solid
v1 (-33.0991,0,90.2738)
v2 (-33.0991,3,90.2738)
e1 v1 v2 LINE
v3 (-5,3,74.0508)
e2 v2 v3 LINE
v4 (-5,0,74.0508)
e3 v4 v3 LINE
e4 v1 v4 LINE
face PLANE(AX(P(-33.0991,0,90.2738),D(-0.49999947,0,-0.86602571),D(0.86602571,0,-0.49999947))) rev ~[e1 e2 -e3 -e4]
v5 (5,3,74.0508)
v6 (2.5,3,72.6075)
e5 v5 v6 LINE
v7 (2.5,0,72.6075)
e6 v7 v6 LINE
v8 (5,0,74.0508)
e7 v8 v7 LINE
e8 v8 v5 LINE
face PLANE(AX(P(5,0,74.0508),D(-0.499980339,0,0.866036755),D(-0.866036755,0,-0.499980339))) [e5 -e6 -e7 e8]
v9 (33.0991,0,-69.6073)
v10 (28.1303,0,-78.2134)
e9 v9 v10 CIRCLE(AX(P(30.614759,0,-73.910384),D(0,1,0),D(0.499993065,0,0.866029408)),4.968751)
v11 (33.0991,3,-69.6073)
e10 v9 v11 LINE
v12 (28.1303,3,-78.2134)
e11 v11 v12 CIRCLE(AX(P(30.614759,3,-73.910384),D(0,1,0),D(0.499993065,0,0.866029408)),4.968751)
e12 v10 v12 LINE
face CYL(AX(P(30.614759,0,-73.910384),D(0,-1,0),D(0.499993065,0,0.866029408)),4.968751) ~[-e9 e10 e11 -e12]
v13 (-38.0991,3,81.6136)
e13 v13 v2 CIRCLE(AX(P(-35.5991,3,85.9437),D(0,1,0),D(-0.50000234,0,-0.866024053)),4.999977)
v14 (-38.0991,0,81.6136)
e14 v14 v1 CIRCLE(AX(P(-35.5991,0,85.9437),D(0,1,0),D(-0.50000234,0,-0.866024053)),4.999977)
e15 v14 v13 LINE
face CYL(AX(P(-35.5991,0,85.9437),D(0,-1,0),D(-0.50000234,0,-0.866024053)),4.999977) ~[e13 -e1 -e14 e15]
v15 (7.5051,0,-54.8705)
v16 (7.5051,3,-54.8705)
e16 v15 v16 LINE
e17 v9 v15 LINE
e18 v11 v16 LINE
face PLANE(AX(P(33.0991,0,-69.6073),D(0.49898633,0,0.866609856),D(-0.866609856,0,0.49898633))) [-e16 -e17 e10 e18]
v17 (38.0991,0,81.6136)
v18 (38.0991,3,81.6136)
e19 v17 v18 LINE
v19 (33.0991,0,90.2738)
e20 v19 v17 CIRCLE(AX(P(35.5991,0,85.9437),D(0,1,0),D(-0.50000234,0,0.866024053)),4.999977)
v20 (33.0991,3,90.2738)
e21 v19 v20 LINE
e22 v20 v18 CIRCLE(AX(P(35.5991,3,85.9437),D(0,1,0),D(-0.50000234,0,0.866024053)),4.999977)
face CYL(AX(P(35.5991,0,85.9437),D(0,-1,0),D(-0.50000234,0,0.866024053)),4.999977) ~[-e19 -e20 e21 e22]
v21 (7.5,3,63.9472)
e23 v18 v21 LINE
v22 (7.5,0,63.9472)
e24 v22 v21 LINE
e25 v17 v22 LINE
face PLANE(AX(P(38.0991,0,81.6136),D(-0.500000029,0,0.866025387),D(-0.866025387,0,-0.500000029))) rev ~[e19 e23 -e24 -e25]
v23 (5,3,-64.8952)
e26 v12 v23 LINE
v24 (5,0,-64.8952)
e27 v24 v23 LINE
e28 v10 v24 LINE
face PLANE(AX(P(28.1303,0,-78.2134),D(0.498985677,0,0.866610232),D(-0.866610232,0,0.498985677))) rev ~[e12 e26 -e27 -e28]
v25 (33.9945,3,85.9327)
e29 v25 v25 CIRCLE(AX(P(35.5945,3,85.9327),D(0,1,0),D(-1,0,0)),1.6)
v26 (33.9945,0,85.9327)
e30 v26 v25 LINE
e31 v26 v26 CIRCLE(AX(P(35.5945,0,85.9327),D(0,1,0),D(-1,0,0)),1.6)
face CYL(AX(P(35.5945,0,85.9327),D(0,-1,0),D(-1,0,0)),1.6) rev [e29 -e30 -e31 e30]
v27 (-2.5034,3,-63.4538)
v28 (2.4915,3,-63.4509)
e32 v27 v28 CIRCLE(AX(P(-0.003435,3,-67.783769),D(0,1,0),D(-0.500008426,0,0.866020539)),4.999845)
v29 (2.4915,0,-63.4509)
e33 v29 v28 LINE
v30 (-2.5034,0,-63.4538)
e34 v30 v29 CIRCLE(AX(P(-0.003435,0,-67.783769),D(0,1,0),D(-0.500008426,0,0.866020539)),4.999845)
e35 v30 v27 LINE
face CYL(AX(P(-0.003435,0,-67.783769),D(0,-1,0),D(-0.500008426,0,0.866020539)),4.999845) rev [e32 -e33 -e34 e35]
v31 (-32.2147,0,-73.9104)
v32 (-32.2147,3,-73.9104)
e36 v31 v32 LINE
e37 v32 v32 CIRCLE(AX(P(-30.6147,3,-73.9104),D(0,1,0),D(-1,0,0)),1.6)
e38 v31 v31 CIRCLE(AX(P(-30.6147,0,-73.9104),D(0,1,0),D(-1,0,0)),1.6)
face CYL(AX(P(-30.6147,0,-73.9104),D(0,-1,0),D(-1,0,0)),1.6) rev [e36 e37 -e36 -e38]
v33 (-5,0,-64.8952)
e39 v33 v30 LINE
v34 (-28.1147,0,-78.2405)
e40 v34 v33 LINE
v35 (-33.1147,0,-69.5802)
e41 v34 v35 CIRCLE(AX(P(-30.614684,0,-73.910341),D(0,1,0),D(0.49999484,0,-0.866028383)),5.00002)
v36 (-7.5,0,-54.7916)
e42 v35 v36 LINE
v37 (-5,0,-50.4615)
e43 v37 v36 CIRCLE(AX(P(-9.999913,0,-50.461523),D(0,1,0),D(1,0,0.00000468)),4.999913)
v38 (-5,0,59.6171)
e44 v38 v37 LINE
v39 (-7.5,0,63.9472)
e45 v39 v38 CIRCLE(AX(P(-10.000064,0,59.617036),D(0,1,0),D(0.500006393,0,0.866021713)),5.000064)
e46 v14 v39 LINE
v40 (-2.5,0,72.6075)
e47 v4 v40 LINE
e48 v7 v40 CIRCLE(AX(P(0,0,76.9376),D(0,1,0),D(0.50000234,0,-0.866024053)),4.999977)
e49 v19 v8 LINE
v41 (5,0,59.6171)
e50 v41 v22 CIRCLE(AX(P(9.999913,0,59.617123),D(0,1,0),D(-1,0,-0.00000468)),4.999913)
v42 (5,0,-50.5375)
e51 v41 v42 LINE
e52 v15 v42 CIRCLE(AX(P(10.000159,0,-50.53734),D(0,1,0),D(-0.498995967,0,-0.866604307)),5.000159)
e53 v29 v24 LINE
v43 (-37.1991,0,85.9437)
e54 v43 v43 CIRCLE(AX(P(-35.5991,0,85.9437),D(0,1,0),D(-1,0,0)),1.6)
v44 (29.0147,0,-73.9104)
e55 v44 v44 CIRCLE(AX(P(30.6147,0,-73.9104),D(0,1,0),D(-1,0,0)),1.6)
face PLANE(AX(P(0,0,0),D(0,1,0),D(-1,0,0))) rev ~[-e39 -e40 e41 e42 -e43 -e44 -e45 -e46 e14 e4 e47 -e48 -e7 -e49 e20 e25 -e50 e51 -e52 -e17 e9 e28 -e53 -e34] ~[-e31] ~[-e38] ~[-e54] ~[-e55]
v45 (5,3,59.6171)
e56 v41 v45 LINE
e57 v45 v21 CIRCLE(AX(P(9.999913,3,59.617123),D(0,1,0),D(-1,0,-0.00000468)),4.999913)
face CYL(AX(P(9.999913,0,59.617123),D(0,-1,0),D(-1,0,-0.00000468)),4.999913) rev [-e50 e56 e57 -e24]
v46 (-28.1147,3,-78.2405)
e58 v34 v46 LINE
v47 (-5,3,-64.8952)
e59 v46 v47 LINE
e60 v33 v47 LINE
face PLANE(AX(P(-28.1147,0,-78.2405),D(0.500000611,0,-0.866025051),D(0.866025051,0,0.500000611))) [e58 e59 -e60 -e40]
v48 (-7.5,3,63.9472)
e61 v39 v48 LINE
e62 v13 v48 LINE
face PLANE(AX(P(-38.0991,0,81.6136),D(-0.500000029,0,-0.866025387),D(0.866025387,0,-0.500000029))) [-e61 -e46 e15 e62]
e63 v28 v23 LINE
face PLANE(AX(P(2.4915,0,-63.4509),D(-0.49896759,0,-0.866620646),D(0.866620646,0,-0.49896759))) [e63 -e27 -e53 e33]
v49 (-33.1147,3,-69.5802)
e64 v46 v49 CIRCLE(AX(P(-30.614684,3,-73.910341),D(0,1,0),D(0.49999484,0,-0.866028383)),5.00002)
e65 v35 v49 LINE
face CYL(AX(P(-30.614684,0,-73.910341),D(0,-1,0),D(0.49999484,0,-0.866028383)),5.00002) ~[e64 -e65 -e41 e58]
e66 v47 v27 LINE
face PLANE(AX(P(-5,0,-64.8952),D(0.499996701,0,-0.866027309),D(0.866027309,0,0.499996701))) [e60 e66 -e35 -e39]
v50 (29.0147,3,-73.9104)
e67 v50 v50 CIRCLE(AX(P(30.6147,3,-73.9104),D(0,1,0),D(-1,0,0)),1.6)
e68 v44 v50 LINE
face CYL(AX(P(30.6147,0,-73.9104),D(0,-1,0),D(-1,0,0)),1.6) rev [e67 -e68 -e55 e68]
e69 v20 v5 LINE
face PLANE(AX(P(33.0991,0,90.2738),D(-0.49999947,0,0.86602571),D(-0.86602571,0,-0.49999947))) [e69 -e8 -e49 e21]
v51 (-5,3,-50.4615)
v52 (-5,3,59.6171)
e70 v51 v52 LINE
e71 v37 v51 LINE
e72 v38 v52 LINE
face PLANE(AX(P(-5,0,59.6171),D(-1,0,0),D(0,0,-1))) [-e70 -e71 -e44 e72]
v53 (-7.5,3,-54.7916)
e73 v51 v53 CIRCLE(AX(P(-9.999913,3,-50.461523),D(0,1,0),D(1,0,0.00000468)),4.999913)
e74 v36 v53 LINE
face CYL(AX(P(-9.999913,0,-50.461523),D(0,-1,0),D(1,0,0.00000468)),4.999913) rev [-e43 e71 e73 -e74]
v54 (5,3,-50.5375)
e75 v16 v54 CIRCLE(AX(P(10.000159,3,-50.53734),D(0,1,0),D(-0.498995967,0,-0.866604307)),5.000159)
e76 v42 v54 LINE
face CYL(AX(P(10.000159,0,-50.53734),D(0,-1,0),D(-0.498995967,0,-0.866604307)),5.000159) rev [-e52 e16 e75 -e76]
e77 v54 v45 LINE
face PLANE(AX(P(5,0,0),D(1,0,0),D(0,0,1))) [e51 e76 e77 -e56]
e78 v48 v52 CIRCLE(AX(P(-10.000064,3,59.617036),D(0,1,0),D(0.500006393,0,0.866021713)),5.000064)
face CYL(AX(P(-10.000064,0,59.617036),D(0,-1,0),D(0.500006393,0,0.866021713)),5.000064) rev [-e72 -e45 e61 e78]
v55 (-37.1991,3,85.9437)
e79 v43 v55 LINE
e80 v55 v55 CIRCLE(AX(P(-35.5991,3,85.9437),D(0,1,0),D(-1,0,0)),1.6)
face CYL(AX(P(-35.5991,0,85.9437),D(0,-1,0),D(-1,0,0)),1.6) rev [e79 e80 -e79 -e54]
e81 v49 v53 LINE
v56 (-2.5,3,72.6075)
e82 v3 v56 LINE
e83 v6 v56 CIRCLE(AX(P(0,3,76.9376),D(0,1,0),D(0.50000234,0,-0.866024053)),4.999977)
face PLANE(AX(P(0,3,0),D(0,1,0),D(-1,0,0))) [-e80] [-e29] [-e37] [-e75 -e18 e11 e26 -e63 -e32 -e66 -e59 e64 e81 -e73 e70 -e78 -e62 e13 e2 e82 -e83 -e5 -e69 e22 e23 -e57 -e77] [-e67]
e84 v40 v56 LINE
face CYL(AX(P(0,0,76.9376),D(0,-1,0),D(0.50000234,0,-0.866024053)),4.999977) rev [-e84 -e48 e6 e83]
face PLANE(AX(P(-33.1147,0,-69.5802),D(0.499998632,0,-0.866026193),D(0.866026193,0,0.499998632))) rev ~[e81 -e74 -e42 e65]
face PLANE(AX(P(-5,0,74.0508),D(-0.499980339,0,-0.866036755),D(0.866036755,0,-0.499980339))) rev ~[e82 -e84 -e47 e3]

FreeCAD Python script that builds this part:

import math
import FreeCAD as App
import Part
import Sketcher
from FreeCAD import Vector
Q = App.Units.Quantity

doc = App.newDocument("Part")
body = doc.addObject("PartDesign::Body", "Body")

# Sketch on XZ plane
sketch1 = body.newObject("Sketcher::SketchObject", "Sketch")
sketch1.AttachmentSupport = (doc.getObject("XZ_Plane"), [""])
sketch1.MapMode = "FlatFace"
sketch1.addGeometry([
    Part.LineSegment(Vector(5, 59.6, 0), Vector(5, -50.5, 0)),  # 0
    Part.ArcOfCircle(Part.Circle(Vector(10, -50.5, 0), Vector(0, 0, 1), 5), math.radians(180), math.radians(240)),  # 1
    Part.LineSegment(Vector(7.5, -54.9, 0), Vector(33.1, -69.6, 0)),  # 2
    Part.ArcOfCircle(Part.Circle(Vector(30.6, -73.9, 0), Vector(0, 0, 1), 5), math.radians(-120), math.radians(60)),  # 3
    Part.LineSegment(Vector(28.1, -78.2, 0), Vector(5, -64.9, 0)),  # 4
    Part.LineSegment(Vector(5, -64.9, 0), Vector(2.5, -63.5, 0)),  # 5
    Part.ArcOfCircle(Part.Circle(Vector(0, -67.8, 0), Vector(0, 0, 1), 5), math.radians(60), math.radians(120)),  # 6
    Part.LineSegment(Vector(-2.5, -63.5, 0), Vector(-5, -64.9, 0)),  # 7
    Part.LineSegment(Vector(-5, -64.9, 0), Vector(-28.1, -78.2, 0)),  # 8
    Part.ArcOfCircle(Part.Circle(Vector(-30.6, -73.9, 0), Vector(0, 0, 1), 5), math.radians(120), math.radians(300)),  # 9
    Part.LineSegment(Vector(-33.1, -69.6, 0), Vector(-7.5, -54.8, 0)),  # 10
    Part.ArcOfCircle(Part.Circle(Vector(-10, -50.5, 0), Vector(0, 0, 1), 5), math.radians(-60), math.radians(0)),  # 11
    Part.LineSegment(Vector(-5, -50.5, 0), Vector(-5, 59.6, 0)),  # 12
    Part.ArcOfCircle(Part.Circle(Vector(-10, 59.6, 0), Vector(0, 0, 1), 5), math.radians(0), math.radians(60)),  # 13
    Part.LineSegment(Vector(-7.5, 63.9, 0), Vector(-38.1, 81.6, 0)),  # 14
    Part.ArcOfCircle(Part.Circle(Vector(-35.6, 85.9, 0), Vector(0, 0, 1), 5), math.radians(60), math.radians(240)),  # 15
    Part.LineSegment(Vector(-33.1, 90.3, 0), Vector(-5, 74.1, 0)),  # 16
    Part.LineSegment(Vector(-5, 74.1, 0), Vector(-2.5, 72.6, 0)),  # 17
    Part.ArcOfCircle(Part.Circle(Vector(0, 76.9, 0), Vector(0, 0, 1), 5), math.radians(-120), math.radians(-60)),  # 18
    Part.LineSegment(Vector(2.5, 72.6, 0), Vector(5, 74.1, 0)),  # 19
    Part.LineSegment(Vector(5, 74.1, 0), Vector(33.1, 90.3, 0)),  # 20
    Part.ArcOfCircle(Part.Circle(Vector(35.6, 85.9, 0), Vector(0, 0, 1), 5), math.radians(-60), math.radians(120)),  # 21
    Part.LineSegment(Vector(38.1, 81.6, 0), Vector(7.5, 63.9, 0)),  # 22
    Part.ArcOfCircle(Part.Circle(Vector(10, 59.6, 0), Vector(0, 0, 1), 5), math.radians(120), math.radians(180)),  # 23
    Part.Circle(Vector(35.6, 85.9, 0), Vector(0, 0, 1), 1.6),  # 24
    Part.Circle(Vector(-35.6, 85.9, 0), Vector(0, 0, 1), 1.6),  # 25
    Part.Circle(Vector(30.6, -73.9, 0), Vector(0, 0, 1), 1.6),  # 26
    Part.Circle(Vector(-30.6, -73.9, 0), Vector(0, 0, 1), 1.6),  # 27
], False)
sketch1.addConstraint([
    Sketcher.Constraint("Tangent", 0, 2, 1, 1),
    Sketcher.Constraint("Tangent", 1, 2, 2, 1),
    Sketcher.Constraint("Coincident", 2, 2, 3, 2),
    Sketcher.Constraint("Coincident", 3, 1, 4, 1),
    Sketcher.Constraint("Coincident", 4, 2, 5, 1),
    Sketcher.Constraint("Tangent", 5, 2, 6, 1),
    Sketcher.Constraint("Tangent", 6, 2, 7, 1),
    Sketcher.Constraint("Coincident", 7, 2, 8, 1),
    Sketcher.Constraint("Tangent", 8, 2, 9, 2),
    Sketcher.Constraint("Tangent", 9, 1, 10, 1),
    Sketcher.Constraint("Tangent", 10, 2, 11, 1),
    Sketcher.Constraint("Tangent", 11, 2, 12, 1),
    Sketcher.Constraint("Tangent", 12, 2, 13, 1),
    Sketcher.Constraint("Tangent", 13, 2, 14, 1),
    Sketcher.Constraint("Tangent", 14, 2, 15, 2),
    Sketcher.Constraint("Tangent", 15, 1, 16, 1),
    Sketcher.Constraint("Coincident", 16, 2, 17, 1),
    Sketcher.Constraint("Tangent", 17, 2, 18, 1),
    Sketcher.Constraint("Tangent", 18, 2, 19, 1),
    Sketcher.Constraint("Coincident", 19, 2, 20, 1),
    Sketcher.Constraint("Tangent", 20, 2, 21, 2),
    Sketcher.Constraint("Tangent", 21, 1, 22, 1),
    Sketcher.Constraint("Tangent", 22, 2, 23, 1),
    Sketcher.Constraint("Tangent", 23, 2, 0, 1),
    Sketcher.Constraint("Vertical", 0),
    Sketcher.Constraint("Vertical", 12),
    Sketcher.Constraint("Coincident", 25, 3, 15, 3),
    Sketcher.Constraint("Coincident", 26, 3, 3, 3),
    Sketcher.Constraint("Coincident", 27, 3, 9, 3),
    Sketcher.Constraint("Equal", 1, 6),
    Sketcher.Constraint("Equal", 6, 9),
    Sketcher.Constraint("Equal", 9, 11),
    Sketcher.Constraint("Equal", 11, 13),
    Sketcher.Constraint("Equal", 13, 15),
    Sketcher.Constraint("Equal", 15, 18),
    Sketcher.Constraint("Equal", 18, 21),
    Sketcher.Constraint("Equal", 21, 23),
    Sketcher.Constraint("Equal", 24, 25),
    Sketcher.Constraint("Equal", 25, 26),
    Sketcher.Constraint("Equal", 26, 27),
    Sketcher.Constraint("Symmetric", 3, 3, 9, 3, -2),
    Sketcher.Constraint("Symmetric", 15, 3, 21, 3, -2),
    Sketcher.Constraint("Symmetric", 13, 3, 23, 3, -2),
    Sketcher.Constraint("Symmetric", 4, 2, 7, 2, -2),
    Sketcher.Constraint("Symmetric", 17, 2, 18, 2, -2),
    Sketcher.Constraint("Parallel", 2, 4),
    Sketcher.Constraint("Parallel", 4, 5),
    Sketcher.Constraint("Parallel", 7, 8),
    Sketcher.Constraint("Parallel", 8, 10),
    Sketcher.Constraint("Parallel", 14, 16),
    Sketcher.Constraint("Parallel", 16, 17),
    Sketcher.Constraint("Parallel", 10, 19),
    Sketcher.Constraint("Horizontal", 16, 2, 19, 2),
    Sketcher.Constraint("Vertical", 0, 2, 4, 2),
    Sketcher.Constraint("Vertical", 12, 2, 16, 2),
    Sketcher.Constraint("Vertical", 2, 2, 20, 2),
    Sketcher.Constraint("Equal", 4, 8),
    Sketcher.Constraint("Radius", 1, Q("5 mm")),
    Sketcher.Constraint("DistanceX", -1, 1, 0, 2, Q("5 mm")),
    Sketcher.Constraint("DistanceX", 9, 1, 8, 2, Q("5 mm")),
    Sketcher.Constraint("Diameter", 24, Q("3.2 mm")),
    Sketcher.Constraint("Radius", 3, Q("4.9688 mm")),
    Sketcher.Constraint("DistanceY", 3, 3, 1, 2, Q("19.04 mm")),
    Sketcher.Constraint("Distance", 16, Q("32.446 mm")),
    Sketcher.Constraint("DistanceY", 0, 2, 0, 1, Q("110.1546 mm")),
    Sketcher.Constraint("DistanceY", 6, 3, -1, 1, Q("67.784 mm")),
    Sketcher.Constraint("DistanceY", 24, 3, 21, 3, Q("0.011 mm")),
    Sketcher.Constraint("DistanceX", -1, 1, 24, 3, Q("35.5945 mm")),
])
pad1 = body.newObject("PartDesign::Pad", "Pad")
pad1.Profile = sketch1
pad1.Length = 3
pad1.Reversed = True

doc.recompute()
